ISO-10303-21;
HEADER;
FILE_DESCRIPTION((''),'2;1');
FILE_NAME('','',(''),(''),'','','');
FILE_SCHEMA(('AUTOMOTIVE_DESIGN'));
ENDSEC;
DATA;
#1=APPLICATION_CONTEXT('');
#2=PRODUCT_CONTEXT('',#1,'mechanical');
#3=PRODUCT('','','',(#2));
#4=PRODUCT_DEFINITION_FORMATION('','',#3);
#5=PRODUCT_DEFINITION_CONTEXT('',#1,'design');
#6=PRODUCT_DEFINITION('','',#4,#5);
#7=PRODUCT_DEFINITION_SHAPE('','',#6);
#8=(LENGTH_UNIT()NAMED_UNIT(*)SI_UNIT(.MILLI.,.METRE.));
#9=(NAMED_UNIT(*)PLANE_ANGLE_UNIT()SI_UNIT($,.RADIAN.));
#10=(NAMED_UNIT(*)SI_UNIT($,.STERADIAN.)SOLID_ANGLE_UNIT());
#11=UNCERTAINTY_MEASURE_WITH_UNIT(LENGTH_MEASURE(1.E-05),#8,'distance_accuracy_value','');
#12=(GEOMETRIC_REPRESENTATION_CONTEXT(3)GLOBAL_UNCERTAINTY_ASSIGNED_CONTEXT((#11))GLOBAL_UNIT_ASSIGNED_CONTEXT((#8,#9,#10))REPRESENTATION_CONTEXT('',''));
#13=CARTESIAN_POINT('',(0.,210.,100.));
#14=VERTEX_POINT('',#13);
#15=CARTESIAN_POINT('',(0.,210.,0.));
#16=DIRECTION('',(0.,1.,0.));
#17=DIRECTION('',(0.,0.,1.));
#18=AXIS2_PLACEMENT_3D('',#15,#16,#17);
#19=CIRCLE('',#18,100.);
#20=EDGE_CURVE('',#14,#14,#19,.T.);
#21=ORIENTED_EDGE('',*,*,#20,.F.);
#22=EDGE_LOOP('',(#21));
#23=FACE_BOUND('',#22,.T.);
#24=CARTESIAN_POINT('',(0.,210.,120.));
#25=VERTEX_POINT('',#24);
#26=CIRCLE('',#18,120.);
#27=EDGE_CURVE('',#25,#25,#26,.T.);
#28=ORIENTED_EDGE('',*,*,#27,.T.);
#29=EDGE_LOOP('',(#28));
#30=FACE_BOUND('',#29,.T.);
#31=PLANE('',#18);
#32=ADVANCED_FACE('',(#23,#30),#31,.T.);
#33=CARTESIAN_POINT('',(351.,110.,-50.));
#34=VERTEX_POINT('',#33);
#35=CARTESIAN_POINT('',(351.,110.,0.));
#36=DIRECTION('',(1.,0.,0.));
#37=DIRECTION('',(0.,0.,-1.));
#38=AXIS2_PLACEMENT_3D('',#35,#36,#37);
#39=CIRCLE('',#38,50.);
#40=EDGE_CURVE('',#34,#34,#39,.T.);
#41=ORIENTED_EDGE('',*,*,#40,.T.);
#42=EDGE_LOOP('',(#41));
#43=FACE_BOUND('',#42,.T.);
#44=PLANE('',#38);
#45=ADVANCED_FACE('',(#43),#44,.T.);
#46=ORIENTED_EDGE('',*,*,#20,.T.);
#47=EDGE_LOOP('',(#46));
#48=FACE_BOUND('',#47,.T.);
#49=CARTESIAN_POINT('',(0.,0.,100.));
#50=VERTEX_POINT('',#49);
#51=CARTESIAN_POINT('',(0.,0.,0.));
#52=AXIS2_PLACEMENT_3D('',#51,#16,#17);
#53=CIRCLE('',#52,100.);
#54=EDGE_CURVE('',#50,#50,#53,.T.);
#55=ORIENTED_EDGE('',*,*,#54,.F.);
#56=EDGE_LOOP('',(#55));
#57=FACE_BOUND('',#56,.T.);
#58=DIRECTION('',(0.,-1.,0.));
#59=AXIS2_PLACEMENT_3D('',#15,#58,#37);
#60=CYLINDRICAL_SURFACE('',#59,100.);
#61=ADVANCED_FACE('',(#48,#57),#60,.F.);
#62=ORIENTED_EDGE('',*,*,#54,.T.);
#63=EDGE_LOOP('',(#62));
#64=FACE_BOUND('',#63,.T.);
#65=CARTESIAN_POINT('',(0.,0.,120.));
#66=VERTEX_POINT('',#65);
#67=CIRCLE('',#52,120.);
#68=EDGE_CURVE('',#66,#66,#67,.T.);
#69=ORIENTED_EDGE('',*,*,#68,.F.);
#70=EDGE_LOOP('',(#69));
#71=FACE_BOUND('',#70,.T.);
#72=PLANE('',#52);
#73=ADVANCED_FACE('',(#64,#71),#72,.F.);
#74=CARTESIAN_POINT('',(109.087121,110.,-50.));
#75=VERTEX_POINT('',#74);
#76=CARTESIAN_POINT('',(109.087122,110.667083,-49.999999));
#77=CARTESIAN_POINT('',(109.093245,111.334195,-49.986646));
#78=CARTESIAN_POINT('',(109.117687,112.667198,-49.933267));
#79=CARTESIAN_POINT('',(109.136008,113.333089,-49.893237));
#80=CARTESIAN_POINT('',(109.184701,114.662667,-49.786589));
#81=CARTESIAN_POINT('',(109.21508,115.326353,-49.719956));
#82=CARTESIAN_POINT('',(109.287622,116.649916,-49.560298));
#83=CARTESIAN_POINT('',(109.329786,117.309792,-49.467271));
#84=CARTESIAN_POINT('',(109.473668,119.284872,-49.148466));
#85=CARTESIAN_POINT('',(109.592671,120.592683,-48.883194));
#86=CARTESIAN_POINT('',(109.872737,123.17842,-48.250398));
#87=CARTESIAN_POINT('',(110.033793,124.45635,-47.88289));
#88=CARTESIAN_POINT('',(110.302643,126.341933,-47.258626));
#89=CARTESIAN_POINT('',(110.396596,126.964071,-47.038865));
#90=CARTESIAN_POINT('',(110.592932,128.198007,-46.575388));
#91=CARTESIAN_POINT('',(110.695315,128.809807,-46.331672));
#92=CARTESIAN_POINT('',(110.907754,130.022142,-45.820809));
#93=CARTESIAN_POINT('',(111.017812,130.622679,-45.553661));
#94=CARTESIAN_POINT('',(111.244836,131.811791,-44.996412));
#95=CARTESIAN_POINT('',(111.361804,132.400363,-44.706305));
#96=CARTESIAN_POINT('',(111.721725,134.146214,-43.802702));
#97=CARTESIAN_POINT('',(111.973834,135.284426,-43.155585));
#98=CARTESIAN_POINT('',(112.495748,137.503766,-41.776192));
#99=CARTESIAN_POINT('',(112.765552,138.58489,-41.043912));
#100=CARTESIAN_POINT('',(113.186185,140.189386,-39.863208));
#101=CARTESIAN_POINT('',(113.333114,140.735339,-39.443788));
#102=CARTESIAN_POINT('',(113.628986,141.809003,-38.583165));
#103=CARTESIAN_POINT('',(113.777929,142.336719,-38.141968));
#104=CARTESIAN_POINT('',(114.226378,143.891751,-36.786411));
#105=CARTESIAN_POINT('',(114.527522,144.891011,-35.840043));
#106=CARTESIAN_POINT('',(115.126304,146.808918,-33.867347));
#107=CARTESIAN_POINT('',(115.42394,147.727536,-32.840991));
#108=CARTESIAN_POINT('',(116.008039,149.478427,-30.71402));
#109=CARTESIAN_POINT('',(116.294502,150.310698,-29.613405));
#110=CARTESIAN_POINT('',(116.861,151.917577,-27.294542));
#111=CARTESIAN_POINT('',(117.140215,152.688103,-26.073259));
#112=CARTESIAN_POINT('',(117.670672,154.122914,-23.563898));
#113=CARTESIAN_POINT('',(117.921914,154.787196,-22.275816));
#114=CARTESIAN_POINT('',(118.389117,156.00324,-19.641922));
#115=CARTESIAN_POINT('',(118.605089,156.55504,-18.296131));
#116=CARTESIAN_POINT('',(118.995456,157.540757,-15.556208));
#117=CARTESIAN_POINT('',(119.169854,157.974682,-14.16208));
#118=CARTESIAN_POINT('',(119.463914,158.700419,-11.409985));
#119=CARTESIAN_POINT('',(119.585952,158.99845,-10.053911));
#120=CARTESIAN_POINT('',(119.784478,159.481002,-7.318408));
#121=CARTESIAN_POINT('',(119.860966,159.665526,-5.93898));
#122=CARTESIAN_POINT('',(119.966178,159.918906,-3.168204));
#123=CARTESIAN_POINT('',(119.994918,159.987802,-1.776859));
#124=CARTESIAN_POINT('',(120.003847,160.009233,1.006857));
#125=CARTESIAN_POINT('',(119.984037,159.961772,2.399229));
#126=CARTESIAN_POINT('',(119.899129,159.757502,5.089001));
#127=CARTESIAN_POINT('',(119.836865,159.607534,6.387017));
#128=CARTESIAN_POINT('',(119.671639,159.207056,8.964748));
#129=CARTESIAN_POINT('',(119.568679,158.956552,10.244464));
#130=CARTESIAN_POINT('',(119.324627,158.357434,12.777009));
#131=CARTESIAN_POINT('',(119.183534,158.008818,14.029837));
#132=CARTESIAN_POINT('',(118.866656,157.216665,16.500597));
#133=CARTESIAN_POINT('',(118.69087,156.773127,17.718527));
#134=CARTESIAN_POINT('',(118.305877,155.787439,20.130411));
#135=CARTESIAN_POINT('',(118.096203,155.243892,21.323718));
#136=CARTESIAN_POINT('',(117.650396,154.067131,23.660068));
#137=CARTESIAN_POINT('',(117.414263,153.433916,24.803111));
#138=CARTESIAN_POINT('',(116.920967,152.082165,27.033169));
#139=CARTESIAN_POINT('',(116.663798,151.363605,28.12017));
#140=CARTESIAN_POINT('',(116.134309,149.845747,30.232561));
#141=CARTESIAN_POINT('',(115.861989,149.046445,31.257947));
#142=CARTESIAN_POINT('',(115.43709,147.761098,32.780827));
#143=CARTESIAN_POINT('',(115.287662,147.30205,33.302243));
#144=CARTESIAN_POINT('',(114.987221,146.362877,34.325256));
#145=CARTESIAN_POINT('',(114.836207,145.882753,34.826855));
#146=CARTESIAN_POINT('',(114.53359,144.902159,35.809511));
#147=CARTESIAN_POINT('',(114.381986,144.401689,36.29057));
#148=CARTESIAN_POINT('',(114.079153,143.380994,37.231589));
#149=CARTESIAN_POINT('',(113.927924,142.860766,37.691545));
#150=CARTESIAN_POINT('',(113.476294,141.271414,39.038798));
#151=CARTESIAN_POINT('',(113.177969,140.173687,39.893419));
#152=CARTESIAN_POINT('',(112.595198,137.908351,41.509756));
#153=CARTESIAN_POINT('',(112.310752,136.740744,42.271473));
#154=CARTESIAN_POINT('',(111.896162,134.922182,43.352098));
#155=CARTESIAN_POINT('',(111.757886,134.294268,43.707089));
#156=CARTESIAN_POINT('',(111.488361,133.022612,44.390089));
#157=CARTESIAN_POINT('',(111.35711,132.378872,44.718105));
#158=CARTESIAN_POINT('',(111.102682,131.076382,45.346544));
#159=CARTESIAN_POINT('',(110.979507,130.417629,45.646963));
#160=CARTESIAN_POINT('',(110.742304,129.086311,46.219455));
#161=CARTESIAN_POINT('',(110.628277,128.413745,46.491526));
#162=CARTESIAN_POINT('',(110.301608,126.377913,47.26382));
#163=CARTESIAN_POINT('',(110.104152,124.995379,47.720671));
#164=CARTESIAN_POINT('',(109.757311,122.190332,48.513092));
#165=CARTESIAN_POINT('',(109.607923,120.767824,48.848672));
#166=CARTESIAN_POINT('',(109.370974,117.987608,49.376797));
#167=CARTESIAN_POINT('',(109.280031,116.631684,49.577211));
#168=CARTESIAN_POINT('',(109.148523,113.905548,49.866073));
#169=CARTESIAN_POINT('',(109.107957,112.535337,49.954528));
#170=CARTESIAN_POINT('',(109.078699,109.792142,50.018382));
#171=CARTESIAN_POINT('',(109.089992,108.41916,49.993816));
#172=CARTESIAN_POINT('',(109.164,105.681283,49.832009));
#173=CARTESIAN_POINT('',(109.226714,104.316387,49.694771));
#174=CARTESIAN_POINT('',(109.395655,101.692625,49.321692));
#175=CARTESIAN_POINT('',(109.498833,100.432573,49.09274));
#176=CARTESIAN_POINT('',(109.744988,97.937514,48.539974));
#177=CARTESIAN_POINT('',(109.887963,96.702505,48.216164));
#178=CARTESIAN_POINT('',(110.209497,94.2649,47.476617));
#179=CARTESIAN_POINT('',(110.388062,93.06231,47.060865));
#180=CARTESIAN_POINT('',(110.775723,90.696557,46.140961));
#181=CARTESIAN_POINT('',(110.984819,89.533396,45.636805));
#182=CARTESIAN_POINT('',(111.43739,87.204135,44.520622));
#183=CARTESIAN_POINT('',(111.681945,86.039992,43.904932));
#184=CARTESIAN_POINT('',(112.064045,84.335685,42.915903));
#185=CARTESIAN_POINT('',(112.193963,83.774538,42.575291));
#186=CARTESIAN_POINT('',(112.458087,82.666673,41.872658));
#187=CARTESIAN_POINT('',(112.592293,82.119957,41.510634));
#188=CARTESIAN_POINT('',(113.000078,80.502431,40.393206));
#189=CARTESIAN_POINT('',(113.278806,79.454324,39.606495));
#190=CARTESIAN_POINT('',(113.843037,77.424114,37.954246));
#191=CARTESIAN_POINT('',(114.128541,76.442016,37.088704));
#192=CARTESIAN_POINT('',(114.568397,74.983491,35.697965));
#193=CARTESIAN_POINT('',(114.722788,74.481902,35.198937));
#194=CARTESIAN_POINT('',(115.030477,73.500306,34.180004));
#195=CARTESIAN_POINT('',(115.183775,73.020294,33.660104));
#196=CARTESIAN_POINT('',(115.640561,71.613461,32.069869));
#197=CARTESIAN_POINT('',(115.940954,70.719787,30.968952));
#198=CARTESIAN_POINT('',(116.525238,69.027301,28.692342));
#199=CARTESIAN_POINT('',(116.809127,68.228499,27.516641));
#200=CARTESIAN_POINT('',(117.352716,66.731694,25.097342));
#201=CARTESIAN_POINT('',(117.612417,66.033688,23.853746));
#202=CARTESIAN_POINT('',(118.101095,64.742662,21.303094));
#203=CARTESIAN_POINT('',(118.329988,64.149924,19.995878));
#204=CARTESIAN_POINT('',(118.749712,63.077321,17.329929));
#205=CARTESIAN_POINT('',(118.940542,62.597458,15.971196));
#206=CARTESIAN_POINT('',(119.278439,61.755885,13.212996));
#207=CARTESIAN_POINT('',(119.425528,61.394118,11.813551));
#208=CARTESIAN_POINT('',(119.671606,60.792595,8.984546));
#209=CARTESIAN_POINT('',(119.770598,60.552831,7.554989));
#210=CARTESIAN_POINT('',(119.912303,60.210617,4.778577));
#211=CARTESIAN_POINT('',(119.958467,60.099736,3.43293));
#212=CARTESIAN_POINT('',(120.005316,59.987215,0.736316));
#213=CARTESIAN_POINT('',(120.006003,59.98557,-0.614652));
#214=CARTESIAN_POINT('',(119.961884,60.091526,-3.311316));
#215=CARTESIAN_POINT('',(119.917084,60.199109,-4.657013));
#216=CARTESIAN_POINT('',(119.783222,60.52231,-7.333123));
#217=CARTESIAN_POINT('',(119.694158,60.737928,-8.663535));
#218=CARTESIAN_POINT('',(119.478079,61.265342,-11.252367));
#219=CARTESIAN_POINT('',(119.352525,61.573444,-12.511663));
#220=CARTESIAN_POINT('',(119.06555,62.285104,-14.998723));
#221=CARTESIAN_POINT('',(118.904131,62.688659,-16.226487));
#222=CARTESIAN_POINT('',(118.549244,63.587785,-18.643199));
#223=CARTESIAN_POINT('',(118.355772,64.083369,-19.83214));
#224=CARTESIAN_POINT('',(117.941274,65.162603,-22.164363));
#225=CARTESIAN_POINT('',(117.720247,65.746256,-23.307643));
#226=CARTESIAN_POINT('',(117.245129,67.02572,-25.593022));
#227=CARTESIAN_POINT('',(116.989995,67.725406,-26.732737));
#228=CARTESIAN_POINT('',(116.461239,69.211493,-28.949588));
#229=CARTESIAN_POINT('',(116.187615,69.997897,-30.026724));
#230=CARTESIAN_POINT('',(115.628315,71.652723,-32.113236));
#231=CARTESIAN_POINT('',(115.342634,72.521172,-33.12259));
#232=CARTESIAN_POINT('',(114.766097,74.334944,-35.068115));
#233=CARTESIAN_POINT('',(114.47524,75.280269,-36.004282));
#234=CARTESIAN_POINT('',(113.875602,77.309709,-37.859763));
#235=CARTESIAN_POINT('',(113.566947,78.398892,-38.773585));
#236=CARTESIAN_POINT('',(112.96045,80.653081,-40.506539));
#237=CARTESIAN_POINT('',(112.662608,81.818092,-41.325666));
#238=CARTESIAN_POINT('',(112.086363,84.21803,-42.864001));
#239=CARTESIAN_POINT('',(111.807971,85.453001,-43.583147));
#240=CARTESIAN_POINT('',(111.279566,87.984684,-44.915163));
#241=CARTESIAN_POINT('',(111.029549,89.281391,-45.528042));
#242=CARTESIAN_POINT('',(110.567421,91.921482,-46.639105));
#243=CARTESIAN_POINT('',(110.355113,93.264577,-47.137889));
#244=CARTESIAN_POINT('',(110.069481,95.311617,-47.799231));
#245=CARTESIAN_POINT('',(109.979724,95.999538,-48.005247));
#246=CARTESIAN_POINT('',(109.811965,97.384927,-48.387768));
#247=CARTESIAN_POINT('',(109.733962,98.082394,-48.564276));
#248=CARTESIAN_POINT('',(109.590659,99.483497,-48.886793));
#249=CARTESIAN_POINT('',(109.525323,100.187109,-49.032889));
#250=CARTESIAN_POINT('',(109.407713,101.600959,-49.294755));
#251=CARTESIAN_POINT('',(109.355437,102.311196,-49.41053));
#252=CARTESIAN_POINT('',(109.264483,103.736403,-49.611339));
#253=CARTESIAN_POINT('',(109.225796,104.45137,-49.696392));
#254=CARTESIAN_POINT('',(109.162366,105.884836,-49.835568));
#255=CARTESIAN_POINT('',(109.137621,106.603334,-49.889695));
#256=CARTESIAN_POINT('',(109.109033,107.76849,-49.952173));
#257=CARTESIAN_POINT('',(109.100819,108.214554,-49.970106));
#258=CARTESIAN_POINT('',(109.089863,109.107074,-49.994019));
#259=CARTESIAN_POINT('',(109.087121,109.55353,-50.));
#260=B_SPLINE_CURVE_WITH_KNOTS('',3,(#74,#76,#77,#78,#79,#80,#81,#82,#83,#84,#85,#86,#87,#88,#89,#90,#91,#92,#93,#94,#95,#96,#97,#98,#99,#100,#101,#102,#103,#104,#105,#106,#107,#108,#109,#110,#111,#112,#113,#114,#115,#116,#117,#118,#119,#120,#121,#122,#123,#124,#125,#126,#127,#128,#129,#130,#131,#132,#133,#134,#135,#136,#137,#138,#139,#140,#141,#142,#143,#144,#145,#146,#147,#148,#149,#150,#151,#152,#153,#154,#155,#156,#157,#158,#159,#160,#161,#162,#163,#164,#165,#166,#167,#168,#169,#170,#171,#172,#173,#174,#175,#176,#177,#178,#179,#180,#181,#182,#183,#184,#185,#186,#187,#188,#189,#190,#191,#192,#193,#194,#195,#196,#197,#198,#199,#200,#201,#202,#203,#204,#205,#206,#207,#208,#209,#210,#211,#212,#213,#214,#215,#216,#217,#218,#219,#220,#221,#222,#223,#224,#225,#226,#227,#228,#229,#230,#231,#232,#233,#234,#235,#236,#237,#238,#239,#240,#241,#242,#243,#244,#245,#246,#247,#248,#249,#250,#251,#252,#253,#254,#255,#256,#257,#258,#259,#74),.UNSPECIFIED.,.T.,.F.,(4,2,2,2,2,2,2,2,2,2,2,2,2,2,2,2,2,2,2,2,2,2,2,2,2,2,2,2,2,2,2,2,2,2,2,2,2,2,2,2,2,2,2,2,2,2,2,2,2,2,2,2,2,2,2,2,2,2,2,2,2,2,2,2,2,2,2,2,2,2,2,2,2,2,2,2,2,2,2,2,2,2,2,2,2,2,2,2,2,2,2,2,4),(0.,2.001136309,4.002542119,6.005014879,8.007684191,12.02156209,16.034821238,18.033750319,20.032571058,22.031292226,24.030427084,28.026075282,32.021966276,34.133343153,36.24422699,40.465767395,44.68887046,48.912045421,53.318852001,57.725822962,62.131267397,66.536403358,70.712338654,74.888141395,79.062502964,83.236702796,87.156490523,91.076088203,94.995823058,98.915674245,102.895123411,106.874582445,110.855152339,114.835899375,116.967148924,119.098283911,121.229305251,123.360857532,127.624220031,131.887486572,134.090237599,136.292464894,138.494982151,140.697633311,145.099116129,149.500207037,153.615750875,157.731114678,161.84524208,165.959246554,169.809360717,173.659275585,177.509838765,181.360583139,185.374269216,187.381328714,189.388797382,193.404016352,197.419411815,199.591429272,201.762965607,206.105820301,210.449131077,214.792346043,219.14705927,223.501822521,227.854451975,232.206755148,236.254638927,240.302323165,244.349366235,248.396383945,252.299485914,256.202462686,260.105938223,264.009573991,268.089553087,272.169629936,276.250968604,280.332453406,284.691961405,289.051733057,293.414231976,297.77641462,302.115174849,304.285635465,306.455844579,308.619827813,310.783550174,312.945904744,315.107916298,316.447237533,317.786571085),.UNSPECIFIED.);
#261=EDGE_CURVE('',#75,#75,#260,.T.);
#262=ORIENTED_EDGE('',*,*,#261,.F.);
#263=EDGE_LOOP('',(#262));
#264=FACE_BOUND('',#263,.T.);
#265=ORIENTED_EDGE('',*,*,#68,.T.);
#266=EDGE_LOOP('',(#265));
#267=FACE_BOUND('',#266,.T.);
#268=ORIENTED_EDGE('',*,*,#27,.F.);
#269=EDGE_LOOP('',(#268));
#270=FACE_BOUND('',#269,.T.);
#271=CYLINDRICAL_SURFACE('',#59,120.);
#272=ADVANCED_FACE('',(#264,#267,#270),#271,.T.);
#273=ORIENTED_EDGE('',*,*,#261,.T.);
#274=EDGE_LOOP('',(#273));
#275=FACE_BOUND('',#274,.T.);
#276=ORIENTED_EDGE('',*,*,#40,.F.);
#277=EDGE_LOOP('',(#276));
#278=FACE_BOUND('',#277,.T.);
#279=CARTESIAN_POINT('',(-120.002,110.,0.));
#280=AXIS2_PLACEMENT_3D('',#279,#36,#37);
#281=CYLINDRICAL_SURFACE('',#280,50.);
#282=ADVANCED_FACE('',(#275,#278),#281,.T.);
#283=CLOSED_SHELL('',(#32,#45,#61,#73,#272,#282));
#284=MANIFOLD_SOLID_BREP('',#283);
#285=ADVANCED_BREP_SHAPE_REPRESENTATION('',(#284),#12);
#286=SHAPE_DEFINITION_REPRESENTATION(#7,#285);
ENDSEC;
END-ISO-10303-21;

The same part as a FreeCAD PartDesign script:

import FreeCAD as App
import Part
import Sketcher
Q = App.Units.Quantity

doc = App.newDocument("Part")
params = doc.addObject("Spreadsheet::Sheet", "Params")
for row, (alias, value) in enumerate([
    ("sketch1_diameter", "240 mm"),
    ("sketch1_diameter2", "200 mm"),
    ("pad1_length", "210 mm"),
    ("sketch2_diameter", "100 mm"),
    ("pad2_length", "1 mm"),
    ("sketch3_diameter", "100 mm"),
], start=1):
    params.set(f"A{row}", alias)
    params.set(f"B{row}", "=" + value)
    params.setAlias(f"B{row}", alias)

body = doc.addObject("PartDesign::Body", "Body")
body.AllowCompound = True

sketch1 = doc.addObject("Sketcher::SketchObject", "Sketch")
body.addObject(sketch1)
sketch1.AttachmentSupport = (doc.XZ_Plane, [""])
sketch1.MapMode = "FlatFace"
sketch1.addGeometry(Part.Circle(App.Vector(0, 0, 0), App.Vector(0, 0, 1), 120), False)
sketch1.addGeometry(Part.Circle(App.Vector(0, 0, 0), App.Vector(0, 0, 1), 100), False)
sketch1.addConstraint(Sketcher.Constraint("Coincident", 0, 3, -1, 1))
sketch1.addConstraint(Sketcher.Constraint("Coincident", 1, 3, -1, 1))
sketch1.addConstraint(Sketcher.Constraint("Diameter", 0, Q("240 mm")))
sketch1.addConstraint(Sketcher.Constraint("Diameter", 1, Q("200 mm")))
sketch1.setExpression("Constraints[2]", "Params.sketch1_diameter")
sketch1.setExpression("Constraints[3]", "Params.sketch1_diameter2")
pad1 = doc.addObject("PartDesign::Pad", "Pad")
body.addObject(pad1)
pad1.Profile = sketch1
pad1.setExpression("Length", "Params.pad1_length")
pad1.Reversed = True

sketch2 = doc.addObject("Sketcher::SketchObject", "Sketch001")
body.addObject(sketch2)
sketch2.AttachmentSupport = (doc.YZ_Plane, [""])
sketch2.MapMode = "FlatFace"
sketch2.AttachmentOffset = App.Placement(App.Vector(0, 0, 350), App.Rotation())
sketch2.addGeometry(Part.Circle(App.Vector(110, 0, 0), App.Vector(0, 0, 1), 50), False)
sketch2.addConstraint(Sketcher.Constraint("PointOnObject", 0, 3, -1))
sketch2.addConstraint(Sketcher.Constraint("Diameter", 0, Q("100 mm")))
sketch2.addConstraint(Sketcher.Constraint("DistanceX", -1, 1, 0, 3, Q("110 mm")))
sketch2.setExpression("Constraints[1]", "Params.sketch2_diameter")
pad2 = doc.addObject("PartDesign::Pad", "Pad001")
body.addObject(pad2)
pad2.Profile = sketch2
pad2.setExpression("Length", "Params.pad2_length")

sketch3 = doc.addObject("Sketcher::SketchObject", "Sketch002")
body.addObject(sketch3)
sketch3.AttachmentSupport = (doc.YZ_Plane, [""])
sketch3.MapMode = "FlatFace"
sketch3.AttachmentOffset = App.Placement(App.Vector(0, 0, 350), App.Rotation())
sketch3.addGeometry(Part.Circle(App.Vector(110, 0, 0), App.Vector(0, 0, 1), 50), False)
sketch3.addConstraint(Sketcher.Constraint("PointOnObject", 0, 3, -1))
sketch3.addConstraint(Sketcher.Constraint("Diameter", 0, Q("100 mm")))
sketch3.addConstraint(Sketcher.Constraint("DistanceX", -1, 1, 0, 3, Q("110 mm")))
sketch3.setExpression("Constraints[1]", "Params.sketch3_diameter")
pad3 = doc.addObject("PartDesign::Pad", "Pad002")
body.addObject(pad3)
pad3.Profile = sketch3
pad3.Type = "UpToFirst"
pad3.Reversed = True

doc.recompute()
